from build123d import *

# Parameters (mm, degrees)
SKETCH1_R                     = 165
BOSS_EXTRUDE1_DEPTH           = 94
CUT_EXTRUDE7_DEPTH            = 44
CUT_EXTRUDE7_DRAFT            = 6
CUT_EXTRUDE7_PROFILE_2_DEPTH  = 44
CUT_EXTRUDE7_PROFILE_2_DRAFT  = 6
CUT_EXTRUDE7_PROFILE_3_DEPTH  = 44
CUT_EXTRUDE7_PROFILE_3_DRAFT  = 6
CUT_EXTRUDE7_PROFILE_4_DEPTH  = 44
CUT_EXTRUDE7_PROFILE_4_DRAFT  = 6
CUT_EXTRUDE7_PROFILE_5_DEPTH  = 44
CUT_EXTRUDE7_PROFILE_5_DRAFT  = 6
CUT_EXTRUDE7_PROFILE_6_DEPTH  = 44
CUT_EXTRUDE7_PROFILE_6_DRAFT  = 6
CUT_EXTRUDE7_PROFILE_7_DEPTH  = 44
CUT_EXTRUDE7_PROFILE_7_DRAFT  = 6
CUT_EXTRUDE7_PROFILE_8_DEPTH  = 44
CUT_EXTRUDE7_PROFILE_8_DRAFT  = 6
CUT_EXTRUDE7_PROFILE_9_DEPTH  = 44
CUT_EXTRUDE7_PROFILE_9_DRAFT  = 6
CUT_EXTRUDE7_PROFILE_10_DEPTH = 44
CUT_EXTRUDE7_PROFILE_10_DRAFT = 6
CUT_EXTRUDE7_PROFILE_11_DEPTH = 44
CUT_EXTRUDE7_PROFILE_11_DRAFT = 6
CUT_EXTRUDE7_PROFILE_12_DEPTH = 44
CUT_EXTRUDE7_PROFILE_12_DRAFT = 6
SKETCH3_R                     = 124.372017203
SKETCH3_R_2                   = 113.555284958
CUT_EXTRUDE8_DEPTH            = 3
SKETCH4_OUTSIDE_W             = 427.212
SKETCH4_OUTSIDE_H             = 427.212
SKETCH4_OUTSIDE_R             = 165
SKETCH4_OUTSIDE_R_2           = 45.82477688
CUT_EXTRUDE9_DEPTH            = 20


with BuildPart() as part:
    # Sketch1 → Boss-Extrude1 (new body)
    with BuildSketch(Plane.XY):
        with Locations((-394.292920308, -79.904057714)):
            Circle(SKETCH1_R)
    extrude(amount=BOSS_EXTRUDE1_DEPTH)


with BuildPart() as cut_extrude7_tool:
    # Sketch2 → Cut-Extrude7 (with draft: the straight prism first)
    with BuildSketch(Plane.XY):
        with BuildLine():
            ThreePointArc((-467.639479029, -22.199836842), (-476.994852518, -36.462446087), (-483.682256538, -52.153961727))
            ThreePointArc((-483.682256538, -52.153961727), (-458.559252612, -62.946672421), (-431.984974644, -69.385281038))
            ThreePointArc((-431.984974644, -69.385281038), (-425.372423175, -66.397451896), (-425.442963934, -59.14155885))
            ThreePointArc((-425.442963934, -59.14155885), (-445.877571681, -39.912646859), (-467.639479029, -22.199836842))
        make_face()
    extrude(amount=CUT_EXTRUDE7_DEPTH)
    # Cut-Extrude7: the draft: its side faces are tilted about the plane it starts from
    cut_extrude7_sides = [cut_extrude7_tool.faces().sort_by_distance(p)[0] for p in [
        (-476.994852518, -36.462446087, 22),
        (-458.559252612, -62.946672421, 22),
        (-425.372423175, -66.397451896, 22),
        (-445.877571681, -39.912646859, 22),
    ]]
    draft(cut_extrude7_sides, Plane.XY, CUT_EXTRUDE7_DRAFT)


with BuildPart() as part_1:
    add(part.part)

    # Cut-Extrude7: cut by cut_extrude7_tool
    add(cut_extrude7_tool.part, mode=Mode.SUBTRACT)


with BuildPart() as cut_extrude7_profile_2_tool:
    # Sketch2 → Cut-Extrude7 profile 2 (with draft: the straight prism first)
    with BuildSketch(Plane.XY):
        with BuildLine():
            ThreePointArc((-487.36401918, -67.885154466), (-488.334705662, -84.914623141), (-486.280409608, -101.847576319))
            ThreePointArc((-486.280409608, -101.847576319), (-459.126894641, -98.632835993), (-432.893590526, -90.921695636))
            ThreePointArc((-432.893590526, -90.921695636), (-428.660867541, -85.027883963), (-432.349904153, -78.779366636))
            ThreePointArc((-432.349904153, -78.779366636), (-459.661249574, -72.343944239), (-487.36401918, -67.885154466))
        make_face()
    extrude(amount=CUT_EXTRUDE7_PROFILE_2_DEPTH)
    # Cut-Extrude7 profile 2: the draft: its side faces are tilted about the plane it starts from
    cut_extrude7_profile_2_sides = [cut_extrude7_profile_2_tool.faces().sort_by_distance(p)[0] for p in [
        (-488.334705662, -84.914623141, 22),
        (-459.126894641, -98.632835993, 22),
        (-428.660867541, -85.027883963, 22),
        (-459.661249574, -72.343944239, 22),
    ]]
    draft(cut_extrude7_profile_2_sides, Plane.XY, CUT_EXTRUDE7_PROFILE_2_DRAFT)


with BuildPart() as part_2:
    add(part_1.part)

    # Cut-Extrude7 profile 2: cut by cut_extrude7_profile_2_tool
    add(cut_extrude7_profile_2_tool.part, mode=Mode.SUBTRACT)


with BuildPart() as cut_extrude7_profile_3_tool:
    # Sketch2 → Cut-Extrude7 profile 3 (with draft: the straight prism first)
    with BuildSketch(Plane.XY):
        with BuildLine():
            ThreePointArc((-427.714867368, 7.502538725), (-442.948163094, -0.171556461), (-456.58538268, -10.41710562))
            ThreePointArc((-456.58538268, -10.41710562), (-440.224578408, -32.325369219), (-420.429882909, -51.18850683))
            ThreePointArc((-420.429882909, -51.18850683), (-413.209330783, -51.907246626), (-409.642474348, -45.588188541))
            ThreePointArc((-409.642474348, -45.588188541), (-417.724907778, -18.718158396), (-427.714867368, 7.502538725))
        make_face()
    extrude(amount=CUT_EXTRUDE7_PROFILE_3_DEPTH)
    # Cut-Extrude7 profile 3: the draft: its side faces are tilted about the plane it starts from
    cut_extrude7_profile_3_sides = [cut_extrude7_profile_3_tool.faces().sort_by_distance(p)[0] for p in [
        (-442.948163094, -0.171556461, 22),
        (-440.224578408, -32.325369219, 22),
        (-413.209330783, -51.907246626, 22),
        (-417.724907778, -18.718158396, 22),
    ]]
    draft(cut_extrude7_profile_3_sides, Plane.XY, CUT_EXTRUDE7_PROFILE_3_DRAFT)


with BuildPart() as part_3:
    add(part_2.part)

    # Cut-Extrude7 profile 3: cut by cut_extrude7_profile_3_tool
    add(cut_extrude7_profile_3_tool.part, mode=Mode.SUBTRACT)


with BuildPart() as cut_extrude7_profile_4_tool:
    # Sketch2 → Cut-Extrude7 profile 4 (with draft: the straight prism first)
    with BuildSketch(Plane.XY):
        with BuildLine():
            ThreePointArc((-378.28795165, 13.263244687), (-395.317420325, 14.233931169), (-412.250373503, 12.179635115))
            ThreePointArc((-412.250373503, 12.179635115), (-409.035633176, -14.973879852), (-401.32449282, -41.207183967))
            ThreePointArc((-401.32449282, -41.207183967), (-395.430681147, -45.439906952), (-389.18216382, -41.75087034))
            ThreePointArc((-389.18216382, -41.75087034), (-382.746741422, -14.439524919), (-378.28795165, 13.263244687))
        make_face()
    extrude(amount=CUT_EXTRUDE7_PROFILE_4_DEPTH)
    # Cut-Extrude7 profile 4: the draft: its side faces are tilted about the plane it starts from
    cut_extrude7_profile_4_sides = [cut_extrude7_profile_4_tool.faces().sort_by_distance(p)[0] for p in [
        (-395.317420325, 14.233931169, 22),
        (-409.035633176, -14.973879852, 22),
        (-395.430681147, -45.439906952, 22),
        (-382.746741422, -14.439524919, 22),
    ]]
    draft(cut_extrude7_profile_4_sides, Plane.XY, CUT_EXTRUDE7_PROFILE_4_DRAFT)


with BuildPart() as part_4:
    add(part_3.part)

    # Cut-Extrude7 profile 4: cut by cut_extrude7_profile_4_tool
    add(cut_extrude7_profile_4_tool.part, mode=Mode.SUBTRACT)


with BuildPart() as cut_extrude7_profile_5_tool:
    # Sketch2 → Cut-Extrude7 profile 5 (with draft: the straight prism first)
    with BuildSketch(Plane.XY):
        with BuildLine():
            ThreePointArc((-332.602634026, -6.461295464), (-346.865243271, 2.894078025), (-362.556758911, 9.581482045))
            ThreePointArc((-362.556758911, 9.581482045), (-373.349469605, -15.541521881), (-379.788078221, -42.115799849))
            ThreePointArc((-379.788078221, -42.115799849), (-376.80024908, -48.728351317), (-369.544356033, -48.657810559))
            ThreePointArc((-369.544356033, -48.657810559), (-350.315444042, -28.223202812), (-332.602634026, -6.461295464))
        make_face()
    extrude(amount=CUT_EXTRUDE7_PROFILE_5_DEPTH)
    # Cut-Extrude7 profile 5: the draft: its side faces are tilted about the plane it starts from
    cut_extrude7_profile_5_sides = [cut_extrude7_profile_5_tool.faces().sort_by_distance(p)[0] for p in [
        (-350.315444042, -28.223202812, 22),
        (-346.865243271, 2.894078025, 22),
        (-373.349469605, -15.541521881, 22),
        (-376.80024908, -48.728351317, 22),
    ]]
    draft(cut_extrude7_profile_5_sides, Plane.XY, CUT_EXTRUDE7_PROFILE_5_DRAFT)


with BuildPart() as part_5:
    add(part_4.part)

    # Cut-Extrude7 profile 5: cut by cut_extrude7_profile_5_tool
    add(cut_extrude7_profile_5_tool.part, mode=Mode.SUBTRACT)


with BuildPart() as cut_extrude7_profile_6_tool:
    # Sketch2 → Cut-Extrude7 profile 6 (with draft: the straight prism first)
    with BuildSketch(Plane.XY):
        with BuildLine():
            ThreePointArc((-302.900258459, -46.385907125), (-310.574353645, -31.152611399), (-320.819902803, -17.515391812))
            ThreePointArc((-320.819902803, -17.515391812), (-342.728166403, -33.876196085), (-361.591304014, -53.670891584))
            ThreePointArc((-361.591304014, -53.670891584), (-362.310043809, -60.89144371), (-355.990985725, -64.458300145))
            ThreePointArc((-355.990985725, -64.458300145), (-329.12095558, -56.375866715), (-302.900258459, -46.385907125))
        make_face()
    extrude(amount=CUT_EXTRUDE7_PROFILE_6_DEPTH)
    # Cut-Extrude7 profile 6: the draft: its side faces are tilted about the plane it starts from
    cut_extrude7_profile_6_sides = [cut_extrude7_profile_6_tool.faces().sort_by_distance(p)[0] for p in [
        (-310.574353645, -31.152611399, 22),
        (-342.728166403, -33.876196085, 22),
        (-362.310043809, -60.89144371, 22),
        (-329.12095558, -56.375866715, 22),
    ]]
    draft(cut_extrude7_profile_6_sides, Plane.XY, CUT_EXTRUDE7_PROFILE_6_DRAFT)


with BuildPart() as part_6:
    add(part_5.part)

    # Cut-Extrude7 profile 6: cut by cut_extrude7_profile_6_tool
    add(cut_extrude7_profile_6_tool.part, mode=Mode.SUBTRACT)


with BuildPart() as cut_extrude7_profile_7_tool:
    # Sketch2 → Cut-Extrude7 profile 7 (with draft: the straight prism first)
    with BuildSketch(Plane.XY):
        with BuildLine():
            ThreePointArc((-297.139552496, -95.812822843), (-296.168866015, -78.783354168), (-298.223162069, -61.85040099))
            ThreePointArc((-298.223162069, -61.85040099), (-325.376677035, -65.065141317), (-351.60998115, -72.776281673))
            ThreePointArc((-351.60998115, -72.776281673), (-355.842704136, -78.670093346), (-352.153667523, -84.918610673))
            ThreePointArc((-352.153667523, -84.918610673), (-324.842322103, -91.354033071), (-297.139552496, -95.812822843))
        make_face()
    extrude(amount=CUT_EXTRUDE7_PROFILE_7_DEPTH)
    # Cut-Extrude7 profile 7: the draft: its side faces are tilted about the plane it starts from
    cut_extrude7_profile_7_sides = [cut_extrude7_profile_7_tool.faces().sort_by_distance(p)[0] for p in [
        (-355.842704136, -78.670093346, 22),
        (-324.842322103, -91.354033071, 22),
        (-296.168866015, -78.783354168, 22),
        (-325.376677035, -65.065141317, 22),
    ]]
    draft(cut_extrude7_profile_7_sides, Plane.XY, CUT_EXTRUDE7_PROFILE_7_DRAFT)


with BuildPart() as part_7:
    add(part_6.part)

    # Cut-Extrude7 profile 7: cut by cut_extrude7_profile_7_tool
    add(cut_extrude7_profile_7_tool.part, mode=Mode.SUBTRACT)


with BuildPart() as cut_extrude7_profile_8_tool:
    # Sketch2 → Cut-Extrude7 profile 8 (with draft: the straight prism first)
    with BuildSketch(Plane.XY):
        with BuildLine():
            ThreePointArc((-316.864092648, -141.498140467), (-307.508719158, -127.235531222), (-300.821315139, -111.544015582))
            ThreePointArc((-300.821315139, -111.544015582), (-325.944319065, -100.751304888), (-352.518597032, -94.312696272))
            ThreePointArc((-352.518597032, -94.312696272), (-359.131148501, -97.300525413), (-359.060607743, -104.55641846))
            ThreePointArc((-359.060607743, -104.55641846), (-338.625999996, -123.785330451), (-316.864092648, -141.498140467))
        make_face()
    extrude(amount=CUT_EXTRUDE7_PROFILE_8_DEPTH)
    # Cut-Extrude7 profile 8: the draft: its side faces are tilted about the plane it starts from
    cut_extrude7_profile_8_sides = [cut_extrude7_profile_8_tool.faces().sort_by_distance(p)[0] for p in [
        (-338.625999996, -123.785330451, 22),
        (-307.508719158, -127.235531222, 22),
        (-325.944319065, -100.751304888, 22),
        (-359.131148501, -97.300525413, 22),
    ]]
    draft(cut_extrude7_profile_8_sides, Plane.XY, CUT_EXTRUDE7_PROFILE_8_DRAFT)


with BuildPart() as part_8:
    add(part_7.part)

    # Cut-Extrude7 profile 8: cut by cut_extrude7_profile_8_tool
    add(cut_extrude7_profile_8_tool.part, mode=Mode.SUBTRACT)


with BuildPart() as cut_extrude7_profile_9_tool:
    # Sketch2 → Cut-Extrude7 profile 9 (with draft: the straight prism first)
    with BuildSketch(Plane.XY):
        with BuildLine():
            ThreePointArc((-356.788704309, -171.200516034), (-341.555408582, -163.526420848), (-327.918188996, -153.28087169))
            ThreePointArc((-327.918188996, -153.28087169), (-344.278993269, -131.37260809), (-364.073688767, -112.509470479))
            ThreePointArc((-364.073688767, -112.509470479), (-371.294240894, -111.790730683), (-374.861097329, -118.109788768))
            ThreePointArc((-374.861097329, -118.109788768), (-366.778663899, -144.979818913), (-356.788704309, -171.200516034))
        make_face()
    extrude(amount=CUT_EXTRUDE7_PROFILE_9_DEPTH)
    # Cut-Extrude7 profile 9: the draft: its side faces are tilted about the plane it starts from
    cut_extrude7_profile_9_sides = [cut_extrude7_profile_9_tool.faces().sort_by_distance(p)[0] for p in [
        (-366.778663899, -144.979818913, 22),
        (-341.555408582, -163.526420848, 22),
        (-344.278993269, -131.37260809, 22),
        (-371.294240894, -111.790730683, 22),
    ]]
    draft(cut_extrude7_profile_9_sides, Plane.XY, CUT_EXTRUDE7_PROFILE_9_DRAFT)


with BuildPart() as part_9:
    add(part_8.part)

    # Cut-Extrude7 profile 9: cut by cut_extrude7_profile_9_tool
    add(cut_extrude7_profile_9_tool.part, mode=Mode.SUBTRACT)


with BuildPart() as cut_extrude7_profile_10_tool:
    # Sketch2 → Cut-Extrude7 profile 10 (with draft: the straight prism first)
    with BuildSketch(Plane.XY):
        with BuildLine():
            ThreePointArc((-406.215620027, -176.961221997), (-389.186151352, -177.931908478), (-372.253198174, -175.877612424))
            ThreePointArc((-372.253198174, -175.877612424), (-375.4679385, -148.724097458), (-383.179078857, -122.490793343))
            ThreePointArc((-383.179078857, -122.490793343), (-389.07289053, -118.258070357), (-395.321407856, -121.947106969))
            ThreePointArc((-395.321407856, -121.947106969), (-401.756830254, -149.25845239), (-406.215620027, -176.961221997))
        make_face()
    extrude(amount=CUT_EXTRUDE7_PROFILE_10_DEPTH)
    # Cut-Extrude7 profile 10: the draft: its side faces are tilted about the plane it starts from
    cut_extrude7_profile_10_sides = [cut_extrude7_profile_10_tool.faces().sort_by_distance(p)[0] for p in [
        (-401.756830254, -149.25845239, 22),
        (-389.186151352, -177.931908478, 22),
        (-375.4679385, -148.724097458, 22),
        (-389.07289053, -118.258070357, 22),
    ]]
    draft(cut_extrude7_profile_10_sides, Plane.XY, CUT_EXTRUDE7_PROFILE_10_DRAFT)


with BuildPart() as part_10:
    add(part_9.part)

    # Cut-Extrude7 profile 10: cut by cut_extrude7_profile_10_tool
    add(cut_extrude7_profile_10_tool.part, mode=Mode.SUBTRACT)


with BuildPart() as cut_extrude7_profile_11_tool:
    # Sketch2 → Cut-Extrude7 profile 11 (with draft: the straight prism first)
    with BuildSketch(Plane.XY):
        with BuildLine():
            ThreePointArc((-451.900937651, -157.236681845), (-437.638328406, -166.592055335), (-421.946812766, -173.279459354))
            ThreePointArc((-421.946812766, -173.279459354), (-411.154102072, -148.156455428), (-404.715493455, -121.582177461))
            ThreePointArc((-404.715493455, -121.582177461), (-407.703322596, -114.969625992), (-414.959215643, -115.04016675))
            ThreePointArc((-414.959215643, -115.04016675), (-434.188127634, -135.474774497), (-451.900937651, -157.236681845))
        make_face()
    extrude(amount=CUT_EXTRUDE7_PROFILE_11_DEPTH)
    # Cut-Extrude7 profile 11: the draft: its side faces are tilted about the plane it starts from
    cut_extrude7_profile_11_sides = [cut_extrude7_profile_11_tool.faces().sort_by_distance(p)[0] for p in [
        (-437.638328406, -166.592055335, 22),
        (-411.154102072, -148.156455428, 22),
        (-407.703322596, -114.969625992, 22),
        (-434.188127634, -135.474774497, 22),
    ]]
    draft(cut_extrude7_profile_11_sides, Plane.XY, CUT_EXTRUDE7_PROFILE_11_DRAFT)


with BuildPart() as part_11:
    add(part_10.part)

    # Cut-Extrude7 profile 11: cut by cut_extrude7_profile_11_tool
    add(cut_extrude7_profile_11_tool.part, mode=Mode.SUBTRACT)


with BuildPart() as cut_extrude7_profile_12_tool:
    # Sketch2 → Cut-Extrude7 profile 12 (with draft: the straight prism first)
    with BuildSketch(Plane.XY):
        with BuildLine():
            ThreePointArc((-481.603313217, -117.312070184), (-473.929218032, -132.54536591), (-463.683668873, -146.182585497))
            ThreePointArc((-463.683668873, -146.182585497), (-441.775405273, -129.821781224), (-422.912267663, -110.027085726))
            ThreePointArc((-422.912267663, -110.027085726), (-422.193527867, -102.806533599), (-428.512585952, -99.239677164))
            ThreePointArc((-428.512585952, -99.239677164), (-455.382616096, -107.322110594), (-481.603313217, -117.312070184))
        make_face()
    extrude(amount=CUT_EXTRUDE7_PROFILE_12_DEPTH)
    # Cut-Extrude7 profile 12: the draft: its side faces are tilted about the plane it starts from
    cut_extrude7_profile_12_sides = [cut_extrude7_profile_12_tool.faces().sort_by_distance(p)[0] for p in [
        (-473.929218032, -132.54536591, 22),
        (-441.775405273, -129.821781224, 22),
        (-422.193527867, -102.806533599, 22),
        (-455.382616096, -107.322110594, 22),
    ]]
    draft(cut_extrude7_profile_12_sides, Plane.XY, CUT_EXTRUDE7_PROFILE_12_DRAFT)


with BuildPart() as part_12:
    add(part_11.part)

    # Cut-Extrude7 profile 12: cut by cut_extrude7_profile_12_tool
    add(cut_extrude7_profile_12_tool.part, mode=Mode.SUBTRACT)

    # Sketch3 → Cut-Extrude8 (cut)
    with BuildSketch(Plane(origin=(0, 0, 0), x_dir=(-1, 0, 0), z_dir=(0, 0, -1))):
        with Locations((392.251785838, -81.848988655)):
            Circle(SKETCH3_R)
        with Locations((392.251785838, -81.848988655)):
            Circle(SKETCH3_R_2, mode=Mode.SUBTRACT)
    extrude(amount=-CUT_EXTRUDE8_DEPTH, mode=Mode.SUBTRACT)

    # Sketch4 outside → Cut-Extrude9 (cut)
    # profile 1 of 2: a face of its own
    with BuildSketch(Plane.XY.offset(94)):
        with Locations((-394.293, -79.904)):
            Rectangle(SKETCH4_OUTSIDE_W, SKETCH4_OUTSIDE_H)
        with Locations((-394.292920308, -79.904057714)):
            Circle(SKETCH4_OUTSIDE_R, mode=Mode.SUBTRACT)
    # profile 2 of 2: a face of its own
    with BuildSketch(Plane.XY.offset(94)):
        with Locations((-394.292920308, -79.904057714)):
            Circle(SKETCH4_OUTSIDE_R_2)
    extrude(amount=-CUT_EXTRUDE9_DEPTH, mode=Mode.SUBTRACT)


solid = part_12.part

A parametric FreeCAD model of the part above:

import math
import FreeCAD as App
import Part
import Sketcher
from FreeCAD import Vector
Q = App.Units.Quantity


def faces_at(feature, points):
    """Names of the faces that lie closest to the given points."""
    faces = feature.Shape.Faces
    near = lambda p: min(range(len(faces)), key=lambda i: faces[i].distToShape(Part.Vertex(*p))[0])
    return sorted({f"Face{near(p) + 1}" for p in points})


def add_polygon(sketch, points):
    """Adds a closed chain of lines whose ends are joined by coincident constraints."""
    first, n = sketch.GeometryCount, len(points)
    for a, b in zip(points, points[1:] + points[:1]):
        sketch.addGeometry(Part.LineSegment(App.Vector(*a, 0), App.Vector(*b, 0)), False)
    for i in range(n):
        sketch.addConstraint(Sketcher.Constraint("Coincident", first + i, 2, first + (i + 1) % n, 1))

doc = App.newDocument("Part")
params = doc.addObject("Spreadsheet::Sheet", "Params")
for row, (alias, value) in enumerate([
    ("sketch1_diameter", "330 mm"),
    ("pad1_length", "94 mm"),
    ("pad2_length", "44 mm"),
    ("draft_angle", "6 deg"),
    ("pad3_length", "44 mm"),
    ("draft2_angle", "6 deg"),
    ("pad4_length", "44 mm"),
    ("draft3_angle", "6 deg"),
    ("pad5_length", "44 mm"),
    ("draft4_angle", "6 deg"),
    ("pad6_length", "44 mm"),
    ("draft5_angle", "6 deg"),
    ("pad7_length", "44 mm"),
    ("draft6_angle", "6 deg"),
    ("pad8_length", "44 mm"),
    ("draft7_angle", "6 deg"),
    ("pad9_length", "44 mm"),
    ("draft8_angle", "6 deg"),
    ("pad10_length", "44 mm"),
    ("draft9_angle", "6 deg"),
    ("pad11_length", "44 mm"),
    ("draft10_angle", "6 deg"),
    ("pad12_length", "44 mm"),
    ("draft11_angle", "6 deg"),
    ("pad13_length", "44 mm"),
    ("draft12_angle", "6 deg"),
    ("pocket1_length", "3 mm"),
    ("sketch15_diameter", "330 mm"),
    ("pocket2_length", "20 mm"),
], start=1):
    params.set(f"A{row}", alias)
    params.set(f"B{row}", "=" + value)
    params.setAlias(f"B{row}", alias)

body = doc.addObject("PartDesign::Body", "Body")

# Sketch on XY plane
sketch1 = body.newObject("Sketcher::SketchObject", "Sketch")
sketch1.AttachmentSupport = (doc.getObject("XY_Plane"), [""])
sketch1.MapMode = "FlatFace"
sketch1.addGeometry(Part.Circle(Vector(-394.29292, -79.904058, 0), Vector(0, 0, 1), 165), False)
sketch1.addConstraint(Sketcher.Constraint("Diameter", 0, Q("330 mm")))
sketch1.addConstraint(Sketcher.Constraint("DistanceX", 0, 3, -1, 1, Q("394.29292 mm")))
sketch1.addConstraint(Sketcher.Constraint("DistanceY", 0, 3, -1, 1, Q("79.904058 mm")))
sketch1.setExpression("Constraints[0]", "Params.sketch1_diameter")
pad1 = body.newObject("PartDesign::Pad", "Pad")
pad1.Profile = sketch1
pad1.setExpression("Length", "Params.pad1_length")
body2 = doc.addObject("PartDesign::Body", "Body001")

# Sketch on XY plane
sketch2 = body2.newObject("Sketcher::SketchObject", "Sketch001")
sketch2.AttachmentSupport = (doc.getObject("XY_Plane001"), [""])
sketch2.MapMode = "FlatFace"
sketch2.addGeometry(Part.ArcOfCircle(Part.Circle(Vector(-392.251786, -81.848989, 0), Vector(0, 0, 1), 96.131814), math.radians(141.647829), math.radians(162.007105)), False)
sketch2.addGeometry(Part.ArcOfCircle(Part.Circle(Vector(-407.048554, 91.595361, 0), Vector(0, 0, 1), 162.90056), math.radians(-118.062369), math.radians(-98.805318)), False)
sketch2.addGeometry(Part.ArcOfCircle(Part.Circle(Vector(-430.968544, -62.823567, 0), Vector(0, 0, 1), 6.639971), math.radians(-98.805318), math.radians(33.677778)), False)
sketch2.addGeometry(Part.ArcOfCircle(Part.Circle(Vector(-703.252121, -333.897564, 0), Vector(0, 0, 1), 390.728538), math.radians(44.68342), math.radians(52.914327)), False)
sketch2.addConstraint(Sketcher.Constraint("Coincident", 0, 2, 1, 1))
sketch2.addConstraint(Sketcher.Constraint("Tangent", 1, 2, 2, 1))
sketch2.addConstraint(Sketcher.Constraint("Coincident", 2, 2, 3, 1))
sketch2.addConstraint(Sketcher.Constraint("Coincident", 3, 2, 0, 1))
sketch2.addConstraint(Sketcher.Constraint("Radius", 1, Q("162.90056 mm")))
sketch2.addConstraint(Sketcher.Constraint("Radius", 2, Q("6.639971 mm")))
sketch2.addConstraint(Sketcher.Constraint("Radius", 0, Q("96.131814 mm")))
sketch2.addConstraint(Sketcher.Constraint("Radius", 3, Q("390.728538 mm")))
sketch2.addConstraint(Sketcher.Constraint("DistanceY", 0, 3, -1, 1, Q("81.848989 mm")))
sketch2.addConstraint(Sketcher.Constraint("DistanceY", -1, 1, 1, 3, Q("91.595361 mm")))
sketch2.addConstraint(Sketcher.Constraint("DistanceX", 3, 3, -1, 1, Q("703.252121 mm")))
sketch2.addConstraint(Sketcher.Constraint("DistanceY", 0, 2, -1, 1, Q("52.153962 mm")))
sketch2.addConstraint(Sketcher.Constraint("DistanceY", 1, 2, -1, 1, Q("69.385281 mm")))
sketch2.addConstraint(Sketcher.Constraint("DistanceY", 2, 2, -1, 1, Q("59.141559 mm")))
sketch2.addConstraint(Sketcher.Constraint("DistanceX", 0, 3, -1, 1, Q("392.251786 mm")))
pad2 = body2.newObject("PartDesign::Pad", "Pad001")
pad2.Profile = sketch2
pad2.setExpression("Length", "Params.pad2_length")
doc.recompute()

draft = body2.newObject("PartDesign::Draft", "Draft")
draft.Base = (pad2, faces_at(pad2, [
    (-476.995, -36.462, 22),
    (-458.559, -62.947, 22),
    (-425.372, -66.397, 22),
    (-445.878, -39.913, 22),
]))
draft.NeutralPlane = (doc.getObject("XY_Plane001"), [""])
draft.setExpression("Angle", "Params.draft_angle")
draft.Reversed = False
doc.recompute()

boolean = body.newObject("PartDesign::Boolean", "Boolean")
boolean.Type = "Cut"
boolean.addObjects([body2])
body3 = doc.addObject("PartDesign::Body", "Body002")

# Sketch on XY plane
sketch3 = body3.newObject("Sketcher::SketchObject", "Sketch002")
sketch3.AttachmentSupport = (doc.getObject("XY_Plane002"), [""])
sketch3.MapMode = "FlatFace"
sketch3.addGeometry(Part.ArcOfCircle(Part.Circle(Vector(-392.251786, -81.848989, 0), Vector(0, 0, 1), 96.131814), math.radians(171.647829), math.radians(192.007105)), False)
sketch3.addGeometry(Part.ArcOfCircle(Part.Circle(Vector(-491.788338, 60.959841, 0), Vector(0, 0, 1), 162.90056), math.radians(-88.062369), math.radians(-68.805318)), False)
sketch3.addGeometry(Part.ArcOfCircle(Part.Circle(Vector(-435.294193, -84.730869, 0), Vector(0, 0, 1), 6.639971), math.radians(-68.805318), math.radians(63.677778)), False)
sketch3.addGeometry(Part.ArcOfCircle(Part.Circle(Vector(-535.56169, -455.629626, 0), Vector(0, 0, 1), 390.728538), math.radians(74.68342), math.radians(82.914327)), False)
sketch3.addConstraint(Sketcher.Constraint("Coincident", 0, 2, 1, 1))
sketch3.addConstraint(Sketcher.Constraint("Tangent", 1, 2, 2, 1))
sketch3.addConstraint(Sketcher.Constraint("Coincident", 2, 2, 3, 1))
sketch3.addConstraint(Sketcher.Constraint("Coincident", 3, 2, 0, 1))
sketch3.addConstraint(Sketcher.Constraint("Radius", 1, Q("162.90056 mm")))
sketch3.addConstraint(Sketcher.Constraint("Radius", 2, Q("6.639971 mm")))
sketch3.addConstraint(Sketcher.Constraint("Radius", 0, Q("96.131814 mm")))
sketch3.addConstraint(Sketcher.Constraint("Radius", 3, Q("390.728538 mm")))
sketch3.addConstraint(Sketcher.Constraint("DistanceX", 3, 3, 1, 2, Q("102.668099 mm")))
sketch3.addConstraint(Sketcher.Constraint("DistanceY", 0, 3, -1, 1, Q("81.848989 mm")))
sketch3.addConstraint(Sketcher.Constraint("DistanceY", -1, 1, 1, 3, Q("60.959841 mm")))
sketch3.addConstraint(Sketcher.Constraint("DistanceY", 2, 3, -1, 1, Q("84.730869 mm")))
sketch3.addConstraint(Sketcher.Constraint("DistanceX", 3, 3, -1, 1, Q("535.56169 mm")))
sketch3.addConstraint(Sketcher.Constraint("DistanceX", 0, 2, -1, 1, Q("486.28041 mm")))
sketch3.addConstraint(Sketcher.Constraint("DistanceY", 3, 3, 0, 2, Q("353.782049 mm")))
pad3 = body3.newObject("PartDesign::Pad", "Pad002")
pad3.Profile = sketch3
pad3.setExpression("Length", "Params.pad3_length")
doc.recompute()

draft2 = body3.newObject("PartDesign::Draft", "Draft001")
draft2.Base = (pad3, faces_at(pad3, [
    (-488.335, -84.915, 22),
    (-459.127, -98.633, 22),
    (-428.661, -85.028, 22),
    (-459.661, -72.344, 22),
]))
draft2.NeutralPlane = (doc.getObject("XY_Plane002"), [""])
draft2.setExpression("Angle", "Params.draft2_angle")
draft2.Reversed = False
doc.recompute()

boolean2 = body.newObject("PartDesign::Boolean", "Boolean001")
boolean2.Type = "Cut"
boolean2.addObjects([body3])
body4 = doc.addObject("PartDesign::Body", "Body003")

# Sketch on XY plane
sketch4 = body4.newObject("Sketcher::SketchObject", "Sketch003")
sketch4.AttachmentSupport = (doc.getObject("XY_Plane003"), [""])
sketch4.MapMode = "FlatFace"
sketch4.addGeometry(Part.ArcOfCircle(Part.Circle(Vector(-392.251786, -81.848989, 0), Vector(0, 0, 1), 96.131814), math.radians(111.647829), math.radians(132.007105)), False)
sketch4.addGeometry(Part.ArcOfCircle(Part.Circle(Vector(-318.343988, 75.756608, 0), Vector(0, 0, 1), 162.90056), math.radians(-148.062369), math.radians(-128.805318)), False)
sketch4.addGeometry(Part.ArcOfCircle(Part.Circle(Vector(-416.268771, -46.014111, 0), Vector(0, 0, 1), 6.639971), math.radians(-128.805318), math.radians(3.677778)), False)
sketch4.addGeometry(Part.ArcOfCircle(Part.Circle(Vector(-787.610265, -144.62929, 0), Vector(0, 0, 1), 390.728538), math.radians(14.68342), math.radians(22.914327)), False)
sketch4.addConstraint(Sketcher.Constraint("Coincident", 0, 2, 1, 1))
sketch4.addConstraint(Sketcher.Constraint("Tangent", 1, 2, 2, 1))
sketch4.addConstraint(Sketcher.Constraint("Coincident", 2, 2, 3, 1))
sketch4.addConstraint(Sketcher.Constraint("Coincident", 3, 2, 0, 1))
sketch4.addConstraint(Sketcher.Constraint("Radius", 1, Q("162.90056 mm")))
sketch4.addConstraint(Sketcher.Constraint("Radius", 2, Q("6.639971 mm")))
sketch4.addConstraint(Sketcher.Constraint("Radius", 0, Q("96.131814 mm")))
sketch4.addConstraint(Sketcher.Constraint("Radius", 3, Q("390.728538 mm")))
sketch4.addConstraint(Sketcher.Constraint("DistanceX", 0, 3, 1, 3, Q("73.907798 mm")))
sketch4.addConstraint(Sketcher.Constraint("DistanceY", 3, 3, 0, 3, Q("62.780301 mm")))
sketch4.addConstraint(Sketcher.Constraint("DistanceY", 3, 3, 1, 3, Q("220.385898 mm")))
sketch4.addConstraint(Sketcher.Constraint("DistanceX", 0, 2, 1, 2, Q("36.1555 mm")))
sketch4.addConstraint(Sketcher.Constraint("DistanceY", 0, 3, 2, 2, Q("36.2608 mm")))
sketch4.addConstraint(Sketcher.Constraint("DistanceY", 0, 3, -1, 1, Q("81.848989 mm")))
sketch4.addConstraint(Sketcher.Constraint("DistanceX", 2, 3, -1, 1, Q("416.268771 mm")))
pad4 = body4.newObject("PartDesign::Pad", "Pad003")
pad4.Profile = sketch4
pad4.setExpression("Length", "Params.pad4_length")
doc.recompute()

draft3 = body4.newObject("PartDesign::Draft", "Draft002")
draft3.Base = (pad4, faces_at(pad4, [
    (-442.948, -0.172, 22),
    (-440.225, -32.325, 22),
    (-413.209, -51.907, 22),
    (-417.725, -18.718, 22),
]))
draft3.NeutralPlane = (doc.getObject("XY_Plane003"), [""])
draft3.setExpression("Angle", "Params.draft3_angle")
draft3.Reversed = False
doc.recompute()

boolean3 = body.newObject("PartDesign::Boolean", "Boolean002")
boolean3.Type = "Cut"
boolean3.addObjects([body4])
body5 = doc.addObject("PartDesign::Body", "Body004")

# Sketch on XY plane
sketch5 = body5.newObject("Sketcher::SketchObject", "Sketch004")
sketch5.AttachmentSupport = (doc.getObject("XY_Plane004"), [""])
sketch5.MapMode = "FlatFace"
sketch5.addGeometry(Part.ArcOfCircle(Part.Circle(Vector(-392.251786, -81.848989, 0), Vector(0, 0, 1), 96.131814), math.radians(81.647829), math.radians(102.007105)), False)
sketch5.addGeometry(Part.ArcOfCircle(Part.Circle(Vector(-249.442956, 17.687563, 0), Vector(0, 0, 1), 162.90056), math.radians(-178.062369), math.radians(-158.805318)), False)
sketch5.addGeometry(Part.ArcOfCircle(Part.Circle(Vector(-395.133667, -38.806582, 0), Vector(0, 0, 1), 6.639971), math.radians(-158.805318), math.radians(-26.322222)), False)
sketch5.addGeometry(Part.ArcOfCircle(Part.Circle(Vector(-766.032422, 61.460915, 0), Vector(0, 0, 1), 390.728538), math.radians(-15.31658), math.radians(-7.085673)), False)
sketch5.addConstraint(Sketcher.Constraint("Coincident", 0, 2, 1, 1))
sketch5.addConstraint(Sketcher.Constraint("Tangent", 1, 2, 2, 1))
sketch5.addConstraint(Sketcher.Constraint("Coincident", 2, 2, 3, 1))
sketch5.addConstraint(Sketcher.Constraint("Coincident", 3, 2, 0, 1))
sketch5.addConstraint(Sketcher.Constraint("Radius", 1, Q("162.90056 mm")))
sketch5.addConstraint(Sketcher.Constraint("Radius", 2, Q("6.639971 mm")))
sketch5.addConstraint(Sketcher.Constraint("Radius", 0, Q("96.131814 mm")))
sketch5.addConstraint(Sketcher.Constraint("Radius", 3, Q("390.728538 mm")))
sketch5.addConstraint(Sketcher.Constraint("DistanceY", 1, 2, 3, 3, Q("102.668099 mm")))
sketch5.addConstraint(Sketcher.Constraint("DistanceY", 0, 3, -1, 1, Q("81.848989 mm")))
sketch5.addConstraint(Sketcher.Constraint("DistanceY", 2, 3, -1, 1, Q("38.806582 mm")))
sketch5.addConstraint(Sketcher.Constraint("DistanceY", 2, 2, -1, 1, Q("41.75087 mm")))
sketch5.addConstraint(Sketcher.Constraint("DistanceX", 3, 2, -1, 1, Q("378.287952 mm")))
sketch5.addConstraint(Sketcher.Constraint("DistanceX", 0, 3, 1, 3, Q("142.808829 mm")))
sketch5.addConstraint(Sketcher.Constraint("DistanceY", 0, 3, 1, 3, Q("99.536552 mm")))
pad5 = body5.newObject("PartDesign::Pad", "Pad004")
pad5.Profile = sketch5
pad5.setExpression("Length", "Params.pad5_length")
doc.recompute()

draft4 = body5.newObject("PartDesign::Draft", "Draft003")
draft4.Base = (pad5, faces_at(pad5, [
    (-395.317, 14.234, 22),
    (-409.036, -14.974, 22),
    (-395.431, -45.44, 22),
    (-382.747, -14.44, 22),
]))
draft4.NeutralPlane = (doc.getObject("XY_Plane004"), [""])
draft4.setExpression("Angle", "Params.draft4_angle")
draft4.Reversed = False
doc.recompute()

boolean4 = body.newObject("PartDesign::Boolean", "Boolean003")
boolean4.Type = "Cut"
boolean4.addObjects([body5])
body6 = doc.addObject("PartDesign::Body", "Body005")

# Sketch on XY plane
sketch6 = body6.newObject("Sketcher::SketchObject", "Sketch005")
sketch6.AttachmentSupport = (doc.getObject("XY_Plane005"), [""])
sketch6.MapMode = "FlatFace"
sketch6.addGeometry(Part.ArcOfCircle(Part.Circle(Vector(-392.251786, -81.848989, 0), Vector(0, 0, 1), 96.131814), math.radians(51.647829), math.radians(72.007105)), False)
sketch6.addGeometry(Part.ArcOfCircle(Part.Circle(Vector(-218.807436, -67.052221, 0), Vector(0, 0, 1), 162.90056), math.radians(151.937631), math.radians(171.194682)), False)
sketch6.addGeometry(Part.ArcOfCircle(Part.Circle(Vector(-373.226364, -43.132231, 0), Vector(0, 0, 1), 6.639971), math.radians(171.194682), math.radians(303.677778)), False)
sketch6.addGeometry(Part.ArcOfCircle(Part.Circle(Vector(-644.300361, 229.151347, 0), Vector(0, 0, 1), 390.728538), math.radians(-45.31658), math.radians(-37.085673)), False)
sketch6.addConstraint(Sketcher.Constraint("Coincident", 0, 2, 1, 1))
sketch6.addConstraint(Sketcher.Constraint("Tangent", 1, 2, 2, 1))
sketch6.addConstraint(Sketcher.Constraint("Coincident", 2, 2, 3, 1))
sketch6.addConstraint(Sketcher.Constraint("Coincident", 3, 2, 0, 1))
sketch6.addConstraint(Sketcher.Constraint("Radius", 1, Q("162.90056 mm")))
sketch6.addConstraint(Sketcher.Constraint("Radius", 2, Q("6.639971 mm")))
sketch6.addConstraint(Sketcher.Constraint("Radius", 0, Q("96.131814 mm")))
sketch6.addConstraint(Sketcher.Constraint("Radius", 3, Q("390.728538 mm")))
sketch6.addConstraint(Sketcher.Constraint("DistanceY", 1, 2, -1, 1, Q("42.1158 mm")))
sketch6.addConstraint(Sketcher.Constraint("DistanceX", 3, 3, 0, 2, Q("281.743602 mm")))
sketch6.addConstraint(Sketcher.Constraint("DistanceY", 0, 3, -1, 1, Q("81.848989 mm")))
sketch6.addConstraint(Sketcher.Constraint("DistanceY", 1, 3, -1, 1, Q("67.052221 mm")))
sketch6.addConstraint(Sketcher.Constraint("DistanceX", 3, 3, -1, 1, Q("644.300361 mm")))
sketch6.addConstraint(Sketcher.Constraint("DistanceX", 1, 2, -1, 1, Q("379.788078 mm")))
sketch6.addConstraint(Sketcher.Constraint("DistanceY", 2, 2, -1, 1, Q("48.657811 mm")))
pad6 = body6.newObject("PartDesign::Pad", "Pad005")
pad6.Profile = sketch6
pad6.setExpression("Length", "Params.pad6_length")
doc.recompute()

draft5 = body6.newObject("PartDesign::Draft", "Draft004")
draft5.Base = (pad6, faces_at(pad6, [
    (-350.315, -28.223, 22),
    (-346.865, 2.894, 22),
    (-373.349, -15.542, 22),
    (-376.8, -48.728, 22),
]))
draft5.NeutralPlane = (doc.getObject("XY_Plane005"), [""])
draft5.setExpression("Angle", "Params.draft5_angle")
draft5.Reversed = False
doc.recompute()

boolean5 = body.newObject("PartDesign::Boolean", "Boolean004")
boolean5.Type = "Cut"
boolean5.addObjects([body6])
body7 = doc.addObject("PartDesign::Body", "Body006")

# Sketch on XY plane
sketch7 = body7.newObject("Sketcher::SketchObject", "Sketch006")
sketch7.AttachmentSupport = (doc.getObject("XY_Plane006"), [""])
sketch7.MapMode = "FlatFace"
sketch7.addGeometry(Part.ArcOfCircle(Part.Circle(Vector(-392.251786, -81.848989, 0), Vector(0, 0, 1), 96.131814), math.radians(21.647829), math.radians(42.007105)), False)
sketch7.addGeometry(Part.ArcOfCircle(Part.Circle(Vector(-234.646189, -155.756787, 0), Vector(0, 0, 1), 162.90056), math.radians(121.937631), math.radians(141.194682)), False)
sketch7.addGeometry(Part.ArcOfCircle(Part.Circle(Vector(-356.416908, -57.832003, 0), Vector(0, 0, 1), 6.639971), math.radians(141.194682), math.radians(273.677778)), False)
sketch7.addGeometry(Part.ArcOfCircle(Part.Circle(Vector(-455.032087, 313.50949, 0), Vector(0, 0, 1), 390.728538), math.radians(-75.31658), math.radians(-67.085673)), False)
sketch7.addConstraint(Sketcher.Constraint("Coincident", 0, 2, 1, 1))
sketch7.addConstraint(Sketcher.Constraint("Tangent", 1, 2, 2, 1))
sketch7.addConstraint(Sketcher.Constraint("Coincident", 2, 2, 3, 1))
sketch7.addConstraint(Sketcher.Constraint("Coincident", 3, 2, 0, 1))
sketch7.addConstraint(Sketcher.Constraint("Radius", 1, Q("162.90056 mm")))
sketch7.addConstraint(Sketcher.Constraint("Radius", 2, Q("6.639971 mm")))
sketch7.addConstraint(Sketcher.Constraint("Radius", 0, Q("96.131814 mm")))
sketch7.addConstraint(Sketcher.Constraint("Radius", 3, Q("390.728538 mm")))
sketch7.addConstraint(Sketcher.Constraint("DistanceY", 2, 2, -1, 1, Q("64.4583 mm")))
sketch7.addConstraint(Sketcher.Constraint("DistanceY", 1, 3, 0, 3, Q("73.907798 mm")))
sketch7.addConstraint(Sketcher.Constraint("DistanceX", 3, 3, 0, 3, Q("62.780301 mm")))
sketch7.addConstraint(Sketcher.Constraint("DistanceX", 3, 3, 1, 3, Q("220.385898 mm")))
sketch7.addConstraint(Sketcher.Constraint("DistanceX", 1, 2, 0, 2, Q("40.771401 mm")))
sketch7.addConstraint(Sketcher.Constraint("DistanceX", 0, 3, 2, 2, Q("36.2608 mm")))
sketch7.addConstraint(Sketcher.Constraint("DistanceX", 1, 3, -1, 1, Q("234.646189 mm")))
pad7 = body7.newObject("PartDesign::Pad", "Pad006")
pad7.Profile = sketch7
pad7.setExpression("Length", "Params.pad7_length")
doc.recompute()

draft6 = body7.newObject("PartDesign::Draft", "Draft005")
draft6.Base = (pad7, faces_at(pad7, [
    (-310.574, -31.153, 22),
    (-342.728, -33.876, 22),
    (-362.31, -60.891, 22),
    (-329.121, -56.376, 22),
]))
draft6.NeutralPlane = (doc.getObject("XY_Plane006"), [""])
draft6.setExpression("Angle", "Params.draft6_angle")
draft6.Reversed = False
doc.recompute()

boolean6 = body.newObject("PartDesign::Boolean", "Boolean005")
boolean6.Type = "Cut"
boolean6.addObjects([body7])
body8 = doc.addObject("PartDesign::Body", "Body007")

# Sketch on XY plane
sketch8 = body8.newObject("Sketcher::SketchObject", "Sketch007")
sketch8.AttachmentSupport = (doc.getObject("XY_Plane007"), [""])
sketch8.MapMode = "FlatFace"
sketch8.addGeometry(Part.ArcOfCircle(Part.Circle(Vector(-392.251786, -81.848989, 0), Vector(0, 0, 1), 96.131814), math.radians(-8.352171), math.radians(12.007105)), False)
sketch8.addGeometry(Part.ArcOfCircle(Part.Circle(Vector(-292.715234, -224.657818, 0), Vector(0, 0, 1), 162.90056), math.radians(91.937631), math.radians(111.194682)), False)
sketch8.addGeometry(Part.ArcOfCircle(Part.Circle(Vector(-349.209379, -78.967108, 0), Vector(0, 0, 1), 6.639971), math.radians(111.194682), math.radians(243.677778)), False)
sketch8.addGeometry(Part.ArcOfCircle(Part.Circle(Vector(-248.941882, 291.931648, 0), Vector(0, 0, 1), 390.728538), math.radians(-105.31658), math.radians(-97.085673)), False)
sketch8.addConstraint(Sketcher.Constraint("Coincident", 0, 2, 1, 1))
sketch8.addConstraint(Sketcher.Constraint("Tangent", 1, 2, 2, 1))
sketch8.addConstraint(Sketcher.Constraint("Coincident", 2, 2, 3, 1))
sketch8.addConstraint(Sketcher.Constraint("Coincident", 3, 2, 0, 1))
sketch8.addConstraint(Sketcher.Constraint("Radius", 1, Q("162.90056 mm")))
sketch8.addConstraint(Sketcher.Constraint("Radius", 2, Q("6.639971 mm")))
sketch8.addConstraint(Sketcher.Constraint("Radius", 0, Q("96.131814 mm")))
sketch8.addConstraint(Sketcher.Constraint("Radius", 3, Q("390.728538 mm")))
sketch8.addConstraint(Sketcher.Constraint("DistanceY", 0, 2, -1, 1, Q("61.850401 mm")))
sketch8.addConstraint(Sketcher.Constraint("DistanceX", 1, 2, 3, 3, Q("102.668099 mm")))
sketch8.addConstraint(Sketcher.Constraint("DistanceY", 0, 3, -1, 1, Q("81.848989 mm")))
sketch8.addConstraint(Sketcher.Constraint("DistanceY", 1, 3, -1, 1, Q("224.657818 mm")))
sketch8.addConstraint(Sketcher.Constraint("DistanceX", 2, 3, -1, 1, Q("349.209379 mm")))
sketch8.addConstraint(Sketcher.Constraint("DistanceY", 1, 2, -1, 1, Q("72.776282 mm")))
sketch8.addConstraint(Sketcher.Constraint("DistanceY", 2, 2, -1, 1, Q("84.918611 mm")))
pad8 = body8.newObject("PartDesign::Pad", "Pad007")
pad8.Profile = sketch8
pad8.setExpression("Length", "Params.pad8_length")
doc.recompute()

draft7 = body8.newObject("PartDesign::Draft", "Draft006")
draft7.Base = (pad8, faces_at(pad8, [
    (-355.843, -78.67, 22),
    (-324.842, -91.354, 22),
    (-296.169, -78.783, 22),
    (-325.377, -65.065, 22),
]))
draft7.NeutralPlane = (doc.getObject("XY_Plane007"), [""])
draft7.setExpression("Angle", "Params.draft7_angle")
draft7.Reversed = False
doc.recompute()

boolean7 = body.newObject("PartDesign::Boolean", "Boolean006")
boolean7.Type = "Cut"
boolean7.addObjects([body8])
body9 = doc.addObject("PartDesign::Body", "Body008")

# Sketch on XY plane
sketch9 = body9.newObject("Sketcher::SketchObject", "Sketch008")
sketch9.AttachmentSupport = (doc.getObject("XY_Plane008"), [""])
sketch9.MapMode = "FlatFace"
sketch9.addGeometry(Part.ArcOfCircle(Part.Circle(Vector(-392.251786, -81.848989, 0), Vector(0, 0, 1), 96.131814), math.radians(-38.352171), math.radians(-17.992895)), False)
sketch9.addGeometry(Part.ArcOfCircle(Part.Circle(Vector(-377.455018, -255.293339, 0), Vector(0, 0, 1), 162.90056), math.radians(61.937631), math.radians(81.194682)), False)
sketch9.addGeometry(Part.ArcOfCircle(Part.Circle(Vector(-353.535028, -100.87441, 0), Vector(0, 0, 1), 6.639971), math.radians(81.194682), math.radians(213.677778)), False)
sketch9.addGeometry(Part.ArcOfCircle(Part.Circle(Vector(-81.25145, 170.199586, 0), Vector(0, 0, 1), 390.728538), math.radians(-135.31658), math.radians(-127.085673)), False)
sketch9.addConstraint(Sketcher.Constraint("Coincident", 0, 2, 1, 1))
sketch9.addConstraint(Sketcher.Constraint("Tangent", 1, 2, 2, 1))
sketch9.addConstraint(Sketcher.Constraint("Coincident", 2, 2, 3, 1))
sketch9.addConstraint(Sketcher.Constraint("Coincident", 3, 2, 0, 1))
sketch9.addConstraint(Sketcher.Constraint("Radius", 1, Q("162.90056 mm")))
sketch9.addConstraint(Sketcher.Constraint("Radius", 2, Q("6.639971 mm")))
sketch9.addConstraint(Sketcher.Constraint("Radius", 0, Q("96.131814 mm")))
sketch9.addConstraint(Sketcher.Constraint("Radius", 3, Q("390.728538 mm")))
sketch9.addConstraint(Sketcher.Constraint("DistanceY", 0, 2, 3, 3, Q("281.743602 mm")))
sketch9.addConstraint(Sketcher.Constraint("DistanceY", 0, 3, -1, 1, Q("81.848989 mm")))
sketch9.addConstraint(Sketcher.Constraint("DistanceX", 1, 3, -1, 1, Q("377.455018 mm")))
sketch9.addConstraint(Sketcher.Constraint("DistanceY", 1, 3, -1, 1, Q("255.293339 mm")))
sketch9.addConstraint(Sketcher.Constraint("DistanceY", 2, 3, -1, 1, Q("100.87441 mm")))
sketch9.addConstraint(Sketcher.Constraint("DistanceX", 3, 3, -1, 1, Q("81.25145 mm")))
sketch9.addConstraint(Sketcher.Constraint("DistanceY", 2, 2, -1, 1, Q("104.556418 mm")))
pad9 = body9.newObject("PartDesign::Pad", "Pad008")
pad9.Profile = sketch9
pad9.setExpression("Length", "Params.pad9_length")
doc.recompute()

draft8 = body9.newObject("PartDesign::Draft", "Draft007")
draft8.Base = (pad9, faces_at(pad9, [
    (-338.626, -123.785, 22),
    (-307.509, -127.236, 22),
    (-325.944, -100.751, 22),
    (-359.131, -97.301, 22),
]))
draft8.NeutralPlane = (doc.getObject("XY_Plane008"), [""])
draft8.setExpression("Angle", "Params.draft8_angle")
draft8.Reversed = False
doc.recompute()

boolean8 = body.newObject("PartDesign::Boolean", "Boolean007")
boolean8.Type = "Cut"
boolean8.addObjects([body9])
body10 = doc.addObject("PartDesign::Body", "Body009")

# Sketch on XY plane
sketch10 = body10.newObject("Sketcher::SketchObject", "Sketch009")
sketch10.AttachmentSupport = (doc.getObject("XY_Plane009"), [""])
sketch10.MapMode = "FlatFace"
sketch10.addGeometry(Part.ArcOfCircle(Part.Circle(Vector(-392.251786, -81.848989, 0), Vector(0, 0, 1), 96.131814), math.radians(-68.352171), math.radians(-47.992895)), False)
sketch10.addGeometry(Part.ArcOfCircle(Part.Circle(Vector(-466.159584, -239.454586, 0), Vector(0, 0, 1), 162.90056), math.radians(31.937631), math.radians(51.194682)), False)
sketch10.addGeometry(Part.ArcOfCircle(Part.Circle(Vector(-368.2348, -117.683866, 0), Vector(0, 0, 1), 6.639971), math.radians(51.194682), math.radians(183.677778)), False)
sketch10.addGeometry(Part.ArcOfCircle(Part.Circle(Vector(3.106693, -19.068687, 0), Vector(0, 0, 1), 390.728538), math.radians(-165.31658), math.radians(-157.085673)), False)
sketch10.addConstraint(Sketcher.Constraint("Coincident", 0, 2, 1, 1))
sketch10.addConstraint(Sketcher.Constraint("Tangent", 1, 2, 2, 1))
sketch10.addConstraint(Sketcher.Constraint("Coincident", 2, 2, 3, 1))
sketch10.addConstraint(Sketcher.Constraint("Coincident", 3, 2, 0, 1))
sketch10.addConstraint(Sketcher.Constraint("Radius", 1, Q("162.90056 mm")))
sketch10.addConstraint(Sketcher.Constraint("Radius", 2, Q("6.639971 mm")))
sketch10.addConstraint(Sketcher.Constraint("Radius", 0, Q("96.131814 mm")))
sketch10.addConstraint(Sketcher.Constraint("Radius", 3, Q("390.728538 mm")))
sketch10.addConstraint(Sketcher.Constraint("DistanceX", 2, 3, -1, 1, Q("368.2348 mm")))
sketch10.addConstraint(Sketcher.Constraint("DistanceX", 1, 3, 0, 3, Q("73.907798 mm")))
sketch10.addConstraint(Sketcher.Constraint("DistanceY", 0, 3, 3, 3, Q("62.780301 mm")))
sketch10.addConstraint(Sketcher.Constraint("DistanceY", 1, 3, 3, 3, Q("220.385898 mm")))
sketch10.addConstraint(Sketcher.Constraint("DistanceX", 1, 2, 0, 2, Q("36.1555 mm")))
sketch10.addConstraint(Sketcher.Constraint("DistanceY", 2, 2, 0, 3, Q("36.2608 mm")))
sketch10.addConstraint(Sketcher.Constraint("DistanceY", 0, 3, -1, 1, Q("81.848989 mm")))
pad10 = body10.newObject("PartDesign::Pad", "Pad009")
pad10.Profile = sketch10
pad10.setExpression("Length", "Params.pad10_length")
doc.recompute()

draft9 = body10.newObject("PartDesign::Draft", "Draft008")
draft9.Base = (pad10, faces_at(pad10, [
    (-366.779, -144.98, 22),
    (-341.555, -163.526, 22),
    (-344.279, -131.373, 22),
    (-371.294, -111.791, 22),
]))
draft9.NeutralPlane = (doc.getObject("XY_Plane009"), [""])
draft9.setExpression("Angle", "Params.draft9_angle")
draft9.Reversed = False
doc.recompute()

boolean9 = body.newObject("PartDesign::Boolean", "Boolean008")
boolean9.Type = "Cut"
boolean9.addObjects([body10])
body11 = doc.addObject("PartDesign::Body", "Body010")

# Sketch on XY plane
sketch11 = body11.newObject("Sketcher::SketchObject", "Sketch010")
sketch11.AttachmentSupport = (doc.getObject("XY_Plane010"), [""])
sketch11.MapMode = "FlatFace"
sketch11.addGeometry(Part.ArcOfCircle(Part.Circle(Vector(-392.251786, -81.848989, 0), Vector(0, 0, 1), 96.131814), math.radians(-98.352171), math.radians(-77.992895)), False)
sketch11.addGeometry(Part.ArcOfCircle(Part.Circle(Vector(-535.060615, -181.38554, 0), Vector(0, 0, 1), 162.90056), math.radians(1.937631), math.radians(21.194682)), False)
sketch11.addGeometry(Part.ArcOfCircle(Part.Circle(Vector(-389.369905, -124.891396, 0), Vector(0, 0, 1), 6.639971), math.radians(21.194682), math.radians(153.677778)), False)
sketch11.addGeometry(Part.ArcOfCircle(Part.Circle(Vector(-18.471149, -225.158892, 0), Vector(0, 0, 1), 390.728538), math.radians(164.68342), math.radians(172.914327)), False)
sketch11.addConstraint(Sketcher.Constraint("Coincident", 0, 2, 1, 1))
sketch11.addConstraint(Sketcher.Constraint("Tangent", 1, 2, 2, 1))
sketch11.addConstraint(Sketcher.Constraint("Coincident", 2, 2, 3, 1))
sketch11.addConstraint(Sketcher.Constraint("Coincident", 3, 2, 0, 1))
sketch11.addConstraint(Sketcher.Constraint("Radius", 1, Q("162.90056 mm")))
sketch11.addConstraint(Sketcher.Constraint("Radius", 2, Q("6.639971 mm")))
sketch11.addConstraint(Sketcher.Constraint("Radius", 0, Q("96.131814 mm")))
sketch11.addConstraint(Sketcher.Constraint("Radius", 3, Q("390.728538 mm")))
sketch11.addConstraint(Sketcher.Constraint("DistanceX", 0, 2, -1, 1, Q("372.253198 mm")))
sketch11.addConstraint(Sketcher.Constraint("DistanceY", 3, 3, 1, 2, Q("102.668099 mm")))
sketch11.addConstraint(Sketcher.Constraint("DistanceY", 0, 3, -1, 1, Q("81.848989 mm")))
sketch11.addConstraint(Sketcher.Constraint("DistanceY", 1, 3, -1, 1, Q("181.38554 mm")))
sketch11.addConstraint(Sketcher.Constraint("DistanceX", 3, 3, -1, 1, Q("18.471149 mm")))
sketch11.addConstraint(Sketcher.Constraint("DistanceX", 1, 2, -1, 1, Q("383.179079 mm")))
sketch11.addConstraint(Sketcher.Constraint("DistanceX", 1, 3, 0, 3, Q("142.808829 mm")))
pad11 = body11.newObject("PartDesign::Pad", "Pad010")
pad11.Profile = sketch11
pad11.setExpression("Length", "Params.pad11_length")
doc.recompute()

draft10 = body11.newObject("PartDesign::Draft", "Draft009")
draft10.Base = (pad11, faces_at(pad11, [
    (-401.757, -149.258, 22),
    (-389.186, -177.932, 22),
    (-375.468, -148.724, 22),
    (-389.073, -118.258, 22),
]))
draft10.NeutralPlane = (doc.getObject("XY_Plane010"), [""])
draft10.setExpression("Angle", "Params.draft10_angle")
draft10.Reversed = False
doc.recompute()

boolean10 = body.newObject("PartDesign::Boolean", "Boolean009")
boolean10.Type = "Cut"
boolean10.addObjects([body11])
body12 = doc.addObject("PartDesign::Body", "Body011")

# Sketch on XY plane
sketch12 = body12.newObject("Sketcher::SketchObject", "Sketch011")
sketch12.AttachmentSupport = (doc.getObject("XY_Plane011"), [""])
sketch12.MapMode = "FlatFace"
sketch12.addGeometry(Part.ArcOfCircle(Part.Circle(Vector(-392.251786, -81.848989, 0), Vector(0, 0, 1), 96.131814), math.radians(-128.352171), math.radians(-107.992895)), False)
sketch12.addGeometry(Part.ArcOfCircle(Part.Circle(Vector(-565.696136, -96.645756, 0), Vector(0, 0, 1), 162.90056), math.radians(-28.062369), math.radians(-8.805318)), False)
sketch12.addGeometry(Part.ArcOfCircle(Part.Circle(Vector(-411.277207, -120.565747, 0), Vector(0, 0, 1), 6.639971), math.radians(-8.805318), math.radians(123.677778)), False)
sketch12.addGeometry(Part.ArcOfCircle(Part.Circle(Vector(-140.203211, -392.849324, 0), Vector(0, 0, 1), 390.728538), math.radians(134.68342), math.radians(142.914327)), False)
sketch12.addConstraint(Sketcher.Constraint("Coincident", 0, 2, 1, 1))
sketch12.addConstraint(Sketcher.Constraint("Tangent", 1, 2, 2, 1))
sketch12.addConstraint(Sketcher.Constraint("Coincident", 2, 2, 3, 1))
sketch12.addConstraint(Sketcher.Constraint("Coincident", 3, 2, 0, 1))
sketch12.addConstraint(Sketcher.Constraint("Radius", 1, Q("162.90056 mm")))
sketch12.addConstraint(Sketcher.Constraint("Radius", 2, Q("6.639971 mm")))
sketch12.addConstraint(Sketcher.Constraint("Radius", 0, Q("96.131814 mm")))
sketch12.addConstraint(Sketcher.Constraint("Radius", 3, Q("390.728538 mm")))
sketch12.addConstraint(Sketcher.Constraint("DistanceY", 0, 3, -1, 1, Q("81.848989 mm")))
sketch12.addConstraint(Sketcher.Constraint("DistanceX", 3, 3, -1, 1, Q("140.203211 mm")))
sketch12.addConstraint(Sketcher.Constraint("DistanceY", 0, 2, -1, 1, Q("173.279459 mm")))
sketch12.addConstraint(Sketcher.Constraint("DistanceX", 1, 3, 0, 3, Q("173.44435 mm")))
sketch12.addConstraint(Sketcher.Constraint("DistanceX", 2, 3, 0, 3, Q("19.025421 mm")))
sketch12.addConstraint(Sketcher.Constraint("DistanceX", 2, 2, 2, 3, Q("3.682008 mm")))
sketch12.addConstraint(Sketcher.Constraint("DistanceX", 0, 3, -1, 1, Q("392.251786 mm")))
pad12 = body12.newObject("PartDesign::Pad", "Pad011")
pad12.Profile = sketch12
pad12.setExpression("Length", "Params.pad12_length")
doc.recompute()

draft11 = body12.newObject("PartDesign::Draft", "Draft010")
draft11.Base = (pad12, faces_at(pad12, [
    (-437.638, -166.592, 22),
    (-411.154, -148.156, 22),
    (-407.703, -114.97, 22),
    (-434.188, -135.475, 22),
]))
draft11.NeutralPlane = (doc.getObject("XY_Plane011"), [""])
draft11.setExpression("Angle", "Params.draft11_angle")
draft11.Reversed = False
doc.recompute()

boolean11 = body.newObject("PartDesign::Boolean", "Boolean010")
boolean11.Type = "Cut"
boolean11.addObjects([body12])
body13 = doc.addObject("PartDesign::Body", "Body012")

# Sketch on XY plane
sketch13 = body13.newObject("Sketcher::SketchObject", "Sketch012")
sketch13.AttachmentSupport = (doc.getObject("XY_Plane012"), [""])
sketch13.MapMode = "FlatFace"
sketch13.addGeometry(Part.ArcOfCircle(Part.Circle(Vector(-392.251786, -81.848989, 0), Vector(0, 0, 1), 96.131814), math.radians(-158.352171), math.radians(-137.992895)), False)
sketch13.addGeometry(Part.ArcOfCircle(Part.Circle(Vector(-549.857383, -7.94119, 0), Vector(0, 0, 1), 162.90056), math.radians(-58.062369), math.radians(-38.805318)), False)
sketch13.addGeometry(Part.ArcOfCircle(Part.Circle(Vector(-428.086663, -105.865974, 0), Vector(0, 0, 1), 6.639971), math.radians(-38.805318), math.radians(93.677778)), False)
sketch13.addGeometry(Part.ArcOfCircle(Part.Circle(Vector(-329.471485, -477.207467, 0), Vector(0, 0, 1), 390.728538), math.radians(104.68342), math.radians(112.914327)), False)
sketch13.addConstraint(Sketcher.Constraint("Coincident", 0, 2, 1, 1))
sketch13.addConstraint(Sketcher.Constraint("Tangent", 1, 2, 2, 1))
sketch13.addConstraint(Sketcher.Constraint("Coincident", 2, 2, 3, 1))
sketch13.addConstraint(Sketcher.Constraint("Coincident", 3, 2, 0, 1))
sketch13.addConstraint(Sketcher.Constraint("Radius", 1, Q("162.90056 mm")))
sketch13.addConstraint(Sketcher.Constraint("Radius", 2, Q("6.639971 mm")))
sketch13.addConstraint(Sketcher.Constraint("Radius", 0, Q("96.131814 mm")))
sketch13.addConstraint(Sketcher.Constraint("Radius", 3, Q("390.728538 mm")))
sketch13.addConstraint(Sketcher.Constraint("DistanceY", 0, 3, 1, 3, Q("73.907798 mm")))
sketch13.addConstraint(Sketcher.Constraint("DistanceX", 0, 3, 3, 3, Q("62.780301 mm")))
sketch13.addConstraint(Sketcher.Constraint("DistanceX", 1, 3, 3, 3, Q("220.385898 mm")))
sketch13.addConstraint(Sketcher.Constraint("DistanceX", 0, 2, 1, 2, Q("40.771401 mm")))
sketch13.addConstraint(Sketcher.Constraint("DistanceX", 2, 2, 0, 3, Q("36.2608 mm")))
sketch13.addConstraint(Sketcher.Constraint("DistanceY", 0, 3, -1, 1, Q("81.848989 mm")))
sketch13.addConstraint(Sketcher.Constraint("DistanceX", 0, 2, -1, 1, Q("463.683669 mm")))
pad13 = body13.newObject("PartDesign::Pad", "Pad012")
pad13.Profile = sketch13
pad13.setExpression("Length", "Params.pad13_length")
doc.recompute()

draft12 = body13.newObject("PartDesign::Draft", "Draft011")
draft12.Base = (pad13, faces_at(pad13, [
    (-473.929, -132.545, 22),
    (-441.775, -129.822, 22),
    (-422.194, -102.807, 22),
    (-455.383, -107.322, 22),
]))
draft12.NeutralPlane = (doc.getObject("XY_Plane012"), [""])
draft12.setExpression("Angle", "Params.draft12_angle")
draft12.Reversed = False
doc.recompute()

boolean12 = body.newObject("PartDesign::Boolean", "Boolean011")
boolean12.Type = "Cut"
boolean12.addObjects([body13])

# Sketch on XY plane
sketch14 = body.newObject("Sketcher::SketchObject", "Sketch013")
sketch14.AttachmentSupport = (doc.getObject("XY_Plane"), [""])
sketch14.MapMode = "FlatFace"
sketch14.addGeometry(Part.Circle(Vector(-392.251786, -81.848989, 0), Vector(0, 0, 1), 124.372017), False)
sketch14.addGeometry(Part.Circle(Vector(-392.251786, -81.848989, 0), Vector(0, 0, 1), 113.555285), False)
sketch14.addConstraint(Sketcher.Constraint("Coincident", 1, 3, 0, 3))
sketch14.addConstraint(Sketcher.Constraint("Diameter", 1, Q("227.11057 mm")))
sketch14.addConstraint(Sketcher.Constraint("Diameter", 0, Q("248.744034 mm")))
sketch14.addConstraint(Sketcher.Constraint("DistanceY", 0, 3, -1, 1, Q("81.848989 mm")))
sketch14.addConstraint(Sketcher.Constraint("DistanceX", 0, 3, -1, 1, Q("392.251786 mm")))
pocket1 = body.newObject("PartDesign::Pocket", "Pocket")
pocket1.Profile = sketch14
pocket1.setExpression("Length", "Params.pocket1_length")
pocket1.Reversed = True

# Sketch on XY plane
sketch15 = body.newObject("Sketcher::SketchObject", "Sketch014")
sketch15.AttachmentSupport = (doc.getObject("XY_Plane"), [""])
sketch15.MapMode = "FlatFace"
sketch15.AttachmentOffset = App.Placement(Vector(0, 0, 94), App.Rotation())
add_polygon(sketch15, [(-607.899, 133.702), (-607.899, -293.51), (-180.687, -293.51), (-180.687, 133.702)])  # lines 0-3
sketch15.addGeometry(Part.Circle(Vector(-394.29292, -79.904058, 0), Vector(0, 0, 1), 165), False)  # 4
sketch15.addGeometry(Part.Circle(Vector(-394.29292, -79.904058, 0), Vector(0, 0, 1), 45.824777), False)  # 5
sketch15.addConstraint(Sketcher.Constraint("Vertical", 0))
sketch15.addConstraint(Sketcher.Constraint("Horizontal", 1))
sketch15.addConstraint(Sketcher.Constraint("Vertical", 2))
sketch15.addConstraint(Sketcher.Constraint("Horizontal", 3))
sketch15.addConstraint(Sketcher.Constraint("Coincident", 5, 3, 4, 3))
sketch15.addConstraint(Sketcher.Constraint("Equal", 3, 0))
sketch15.addConstraint(Sketcher.Constraint("Diameter", 4, Q("330 mm")))
sketch15.addConstraint(Sketcher.Constraint("DistanceX", 1, 1, 1, 2, Q("427.212 mm")))
sketch15.addConstraint(Sketcher.Constraint("DistanceY", 0, 2, -1, 1, Q("293.51 mm")))
sketch15.addConstraint(Sketcher.Constraint("Diameter", 5, Q("91.649554 mm")))
sketch15.addConstraint(Sketcher.Constraint("DistanceX", 0, 2, -1, 1, Q("607.899 mm")))
sketch15.addConstraint(Sketcher.Constraint("DistanceX", 4, 3, -1, 1, Q("394.29292 mm")))
sketch15.addConstraint(Sketcher.Constraint("DistanceY", 4, 3, -1, 1, Q("79.904058 mm")))
sketch15.setExpression("Constraints[10]", "Params.sketch15_diameter")
pocket2 = body.newObject("PartDesign::Pocket", "Pocket001")
pocket2.Profile = sketch15
pocket2.setExpression("Length", "Params.pocket2_length")

doc.recompute()
